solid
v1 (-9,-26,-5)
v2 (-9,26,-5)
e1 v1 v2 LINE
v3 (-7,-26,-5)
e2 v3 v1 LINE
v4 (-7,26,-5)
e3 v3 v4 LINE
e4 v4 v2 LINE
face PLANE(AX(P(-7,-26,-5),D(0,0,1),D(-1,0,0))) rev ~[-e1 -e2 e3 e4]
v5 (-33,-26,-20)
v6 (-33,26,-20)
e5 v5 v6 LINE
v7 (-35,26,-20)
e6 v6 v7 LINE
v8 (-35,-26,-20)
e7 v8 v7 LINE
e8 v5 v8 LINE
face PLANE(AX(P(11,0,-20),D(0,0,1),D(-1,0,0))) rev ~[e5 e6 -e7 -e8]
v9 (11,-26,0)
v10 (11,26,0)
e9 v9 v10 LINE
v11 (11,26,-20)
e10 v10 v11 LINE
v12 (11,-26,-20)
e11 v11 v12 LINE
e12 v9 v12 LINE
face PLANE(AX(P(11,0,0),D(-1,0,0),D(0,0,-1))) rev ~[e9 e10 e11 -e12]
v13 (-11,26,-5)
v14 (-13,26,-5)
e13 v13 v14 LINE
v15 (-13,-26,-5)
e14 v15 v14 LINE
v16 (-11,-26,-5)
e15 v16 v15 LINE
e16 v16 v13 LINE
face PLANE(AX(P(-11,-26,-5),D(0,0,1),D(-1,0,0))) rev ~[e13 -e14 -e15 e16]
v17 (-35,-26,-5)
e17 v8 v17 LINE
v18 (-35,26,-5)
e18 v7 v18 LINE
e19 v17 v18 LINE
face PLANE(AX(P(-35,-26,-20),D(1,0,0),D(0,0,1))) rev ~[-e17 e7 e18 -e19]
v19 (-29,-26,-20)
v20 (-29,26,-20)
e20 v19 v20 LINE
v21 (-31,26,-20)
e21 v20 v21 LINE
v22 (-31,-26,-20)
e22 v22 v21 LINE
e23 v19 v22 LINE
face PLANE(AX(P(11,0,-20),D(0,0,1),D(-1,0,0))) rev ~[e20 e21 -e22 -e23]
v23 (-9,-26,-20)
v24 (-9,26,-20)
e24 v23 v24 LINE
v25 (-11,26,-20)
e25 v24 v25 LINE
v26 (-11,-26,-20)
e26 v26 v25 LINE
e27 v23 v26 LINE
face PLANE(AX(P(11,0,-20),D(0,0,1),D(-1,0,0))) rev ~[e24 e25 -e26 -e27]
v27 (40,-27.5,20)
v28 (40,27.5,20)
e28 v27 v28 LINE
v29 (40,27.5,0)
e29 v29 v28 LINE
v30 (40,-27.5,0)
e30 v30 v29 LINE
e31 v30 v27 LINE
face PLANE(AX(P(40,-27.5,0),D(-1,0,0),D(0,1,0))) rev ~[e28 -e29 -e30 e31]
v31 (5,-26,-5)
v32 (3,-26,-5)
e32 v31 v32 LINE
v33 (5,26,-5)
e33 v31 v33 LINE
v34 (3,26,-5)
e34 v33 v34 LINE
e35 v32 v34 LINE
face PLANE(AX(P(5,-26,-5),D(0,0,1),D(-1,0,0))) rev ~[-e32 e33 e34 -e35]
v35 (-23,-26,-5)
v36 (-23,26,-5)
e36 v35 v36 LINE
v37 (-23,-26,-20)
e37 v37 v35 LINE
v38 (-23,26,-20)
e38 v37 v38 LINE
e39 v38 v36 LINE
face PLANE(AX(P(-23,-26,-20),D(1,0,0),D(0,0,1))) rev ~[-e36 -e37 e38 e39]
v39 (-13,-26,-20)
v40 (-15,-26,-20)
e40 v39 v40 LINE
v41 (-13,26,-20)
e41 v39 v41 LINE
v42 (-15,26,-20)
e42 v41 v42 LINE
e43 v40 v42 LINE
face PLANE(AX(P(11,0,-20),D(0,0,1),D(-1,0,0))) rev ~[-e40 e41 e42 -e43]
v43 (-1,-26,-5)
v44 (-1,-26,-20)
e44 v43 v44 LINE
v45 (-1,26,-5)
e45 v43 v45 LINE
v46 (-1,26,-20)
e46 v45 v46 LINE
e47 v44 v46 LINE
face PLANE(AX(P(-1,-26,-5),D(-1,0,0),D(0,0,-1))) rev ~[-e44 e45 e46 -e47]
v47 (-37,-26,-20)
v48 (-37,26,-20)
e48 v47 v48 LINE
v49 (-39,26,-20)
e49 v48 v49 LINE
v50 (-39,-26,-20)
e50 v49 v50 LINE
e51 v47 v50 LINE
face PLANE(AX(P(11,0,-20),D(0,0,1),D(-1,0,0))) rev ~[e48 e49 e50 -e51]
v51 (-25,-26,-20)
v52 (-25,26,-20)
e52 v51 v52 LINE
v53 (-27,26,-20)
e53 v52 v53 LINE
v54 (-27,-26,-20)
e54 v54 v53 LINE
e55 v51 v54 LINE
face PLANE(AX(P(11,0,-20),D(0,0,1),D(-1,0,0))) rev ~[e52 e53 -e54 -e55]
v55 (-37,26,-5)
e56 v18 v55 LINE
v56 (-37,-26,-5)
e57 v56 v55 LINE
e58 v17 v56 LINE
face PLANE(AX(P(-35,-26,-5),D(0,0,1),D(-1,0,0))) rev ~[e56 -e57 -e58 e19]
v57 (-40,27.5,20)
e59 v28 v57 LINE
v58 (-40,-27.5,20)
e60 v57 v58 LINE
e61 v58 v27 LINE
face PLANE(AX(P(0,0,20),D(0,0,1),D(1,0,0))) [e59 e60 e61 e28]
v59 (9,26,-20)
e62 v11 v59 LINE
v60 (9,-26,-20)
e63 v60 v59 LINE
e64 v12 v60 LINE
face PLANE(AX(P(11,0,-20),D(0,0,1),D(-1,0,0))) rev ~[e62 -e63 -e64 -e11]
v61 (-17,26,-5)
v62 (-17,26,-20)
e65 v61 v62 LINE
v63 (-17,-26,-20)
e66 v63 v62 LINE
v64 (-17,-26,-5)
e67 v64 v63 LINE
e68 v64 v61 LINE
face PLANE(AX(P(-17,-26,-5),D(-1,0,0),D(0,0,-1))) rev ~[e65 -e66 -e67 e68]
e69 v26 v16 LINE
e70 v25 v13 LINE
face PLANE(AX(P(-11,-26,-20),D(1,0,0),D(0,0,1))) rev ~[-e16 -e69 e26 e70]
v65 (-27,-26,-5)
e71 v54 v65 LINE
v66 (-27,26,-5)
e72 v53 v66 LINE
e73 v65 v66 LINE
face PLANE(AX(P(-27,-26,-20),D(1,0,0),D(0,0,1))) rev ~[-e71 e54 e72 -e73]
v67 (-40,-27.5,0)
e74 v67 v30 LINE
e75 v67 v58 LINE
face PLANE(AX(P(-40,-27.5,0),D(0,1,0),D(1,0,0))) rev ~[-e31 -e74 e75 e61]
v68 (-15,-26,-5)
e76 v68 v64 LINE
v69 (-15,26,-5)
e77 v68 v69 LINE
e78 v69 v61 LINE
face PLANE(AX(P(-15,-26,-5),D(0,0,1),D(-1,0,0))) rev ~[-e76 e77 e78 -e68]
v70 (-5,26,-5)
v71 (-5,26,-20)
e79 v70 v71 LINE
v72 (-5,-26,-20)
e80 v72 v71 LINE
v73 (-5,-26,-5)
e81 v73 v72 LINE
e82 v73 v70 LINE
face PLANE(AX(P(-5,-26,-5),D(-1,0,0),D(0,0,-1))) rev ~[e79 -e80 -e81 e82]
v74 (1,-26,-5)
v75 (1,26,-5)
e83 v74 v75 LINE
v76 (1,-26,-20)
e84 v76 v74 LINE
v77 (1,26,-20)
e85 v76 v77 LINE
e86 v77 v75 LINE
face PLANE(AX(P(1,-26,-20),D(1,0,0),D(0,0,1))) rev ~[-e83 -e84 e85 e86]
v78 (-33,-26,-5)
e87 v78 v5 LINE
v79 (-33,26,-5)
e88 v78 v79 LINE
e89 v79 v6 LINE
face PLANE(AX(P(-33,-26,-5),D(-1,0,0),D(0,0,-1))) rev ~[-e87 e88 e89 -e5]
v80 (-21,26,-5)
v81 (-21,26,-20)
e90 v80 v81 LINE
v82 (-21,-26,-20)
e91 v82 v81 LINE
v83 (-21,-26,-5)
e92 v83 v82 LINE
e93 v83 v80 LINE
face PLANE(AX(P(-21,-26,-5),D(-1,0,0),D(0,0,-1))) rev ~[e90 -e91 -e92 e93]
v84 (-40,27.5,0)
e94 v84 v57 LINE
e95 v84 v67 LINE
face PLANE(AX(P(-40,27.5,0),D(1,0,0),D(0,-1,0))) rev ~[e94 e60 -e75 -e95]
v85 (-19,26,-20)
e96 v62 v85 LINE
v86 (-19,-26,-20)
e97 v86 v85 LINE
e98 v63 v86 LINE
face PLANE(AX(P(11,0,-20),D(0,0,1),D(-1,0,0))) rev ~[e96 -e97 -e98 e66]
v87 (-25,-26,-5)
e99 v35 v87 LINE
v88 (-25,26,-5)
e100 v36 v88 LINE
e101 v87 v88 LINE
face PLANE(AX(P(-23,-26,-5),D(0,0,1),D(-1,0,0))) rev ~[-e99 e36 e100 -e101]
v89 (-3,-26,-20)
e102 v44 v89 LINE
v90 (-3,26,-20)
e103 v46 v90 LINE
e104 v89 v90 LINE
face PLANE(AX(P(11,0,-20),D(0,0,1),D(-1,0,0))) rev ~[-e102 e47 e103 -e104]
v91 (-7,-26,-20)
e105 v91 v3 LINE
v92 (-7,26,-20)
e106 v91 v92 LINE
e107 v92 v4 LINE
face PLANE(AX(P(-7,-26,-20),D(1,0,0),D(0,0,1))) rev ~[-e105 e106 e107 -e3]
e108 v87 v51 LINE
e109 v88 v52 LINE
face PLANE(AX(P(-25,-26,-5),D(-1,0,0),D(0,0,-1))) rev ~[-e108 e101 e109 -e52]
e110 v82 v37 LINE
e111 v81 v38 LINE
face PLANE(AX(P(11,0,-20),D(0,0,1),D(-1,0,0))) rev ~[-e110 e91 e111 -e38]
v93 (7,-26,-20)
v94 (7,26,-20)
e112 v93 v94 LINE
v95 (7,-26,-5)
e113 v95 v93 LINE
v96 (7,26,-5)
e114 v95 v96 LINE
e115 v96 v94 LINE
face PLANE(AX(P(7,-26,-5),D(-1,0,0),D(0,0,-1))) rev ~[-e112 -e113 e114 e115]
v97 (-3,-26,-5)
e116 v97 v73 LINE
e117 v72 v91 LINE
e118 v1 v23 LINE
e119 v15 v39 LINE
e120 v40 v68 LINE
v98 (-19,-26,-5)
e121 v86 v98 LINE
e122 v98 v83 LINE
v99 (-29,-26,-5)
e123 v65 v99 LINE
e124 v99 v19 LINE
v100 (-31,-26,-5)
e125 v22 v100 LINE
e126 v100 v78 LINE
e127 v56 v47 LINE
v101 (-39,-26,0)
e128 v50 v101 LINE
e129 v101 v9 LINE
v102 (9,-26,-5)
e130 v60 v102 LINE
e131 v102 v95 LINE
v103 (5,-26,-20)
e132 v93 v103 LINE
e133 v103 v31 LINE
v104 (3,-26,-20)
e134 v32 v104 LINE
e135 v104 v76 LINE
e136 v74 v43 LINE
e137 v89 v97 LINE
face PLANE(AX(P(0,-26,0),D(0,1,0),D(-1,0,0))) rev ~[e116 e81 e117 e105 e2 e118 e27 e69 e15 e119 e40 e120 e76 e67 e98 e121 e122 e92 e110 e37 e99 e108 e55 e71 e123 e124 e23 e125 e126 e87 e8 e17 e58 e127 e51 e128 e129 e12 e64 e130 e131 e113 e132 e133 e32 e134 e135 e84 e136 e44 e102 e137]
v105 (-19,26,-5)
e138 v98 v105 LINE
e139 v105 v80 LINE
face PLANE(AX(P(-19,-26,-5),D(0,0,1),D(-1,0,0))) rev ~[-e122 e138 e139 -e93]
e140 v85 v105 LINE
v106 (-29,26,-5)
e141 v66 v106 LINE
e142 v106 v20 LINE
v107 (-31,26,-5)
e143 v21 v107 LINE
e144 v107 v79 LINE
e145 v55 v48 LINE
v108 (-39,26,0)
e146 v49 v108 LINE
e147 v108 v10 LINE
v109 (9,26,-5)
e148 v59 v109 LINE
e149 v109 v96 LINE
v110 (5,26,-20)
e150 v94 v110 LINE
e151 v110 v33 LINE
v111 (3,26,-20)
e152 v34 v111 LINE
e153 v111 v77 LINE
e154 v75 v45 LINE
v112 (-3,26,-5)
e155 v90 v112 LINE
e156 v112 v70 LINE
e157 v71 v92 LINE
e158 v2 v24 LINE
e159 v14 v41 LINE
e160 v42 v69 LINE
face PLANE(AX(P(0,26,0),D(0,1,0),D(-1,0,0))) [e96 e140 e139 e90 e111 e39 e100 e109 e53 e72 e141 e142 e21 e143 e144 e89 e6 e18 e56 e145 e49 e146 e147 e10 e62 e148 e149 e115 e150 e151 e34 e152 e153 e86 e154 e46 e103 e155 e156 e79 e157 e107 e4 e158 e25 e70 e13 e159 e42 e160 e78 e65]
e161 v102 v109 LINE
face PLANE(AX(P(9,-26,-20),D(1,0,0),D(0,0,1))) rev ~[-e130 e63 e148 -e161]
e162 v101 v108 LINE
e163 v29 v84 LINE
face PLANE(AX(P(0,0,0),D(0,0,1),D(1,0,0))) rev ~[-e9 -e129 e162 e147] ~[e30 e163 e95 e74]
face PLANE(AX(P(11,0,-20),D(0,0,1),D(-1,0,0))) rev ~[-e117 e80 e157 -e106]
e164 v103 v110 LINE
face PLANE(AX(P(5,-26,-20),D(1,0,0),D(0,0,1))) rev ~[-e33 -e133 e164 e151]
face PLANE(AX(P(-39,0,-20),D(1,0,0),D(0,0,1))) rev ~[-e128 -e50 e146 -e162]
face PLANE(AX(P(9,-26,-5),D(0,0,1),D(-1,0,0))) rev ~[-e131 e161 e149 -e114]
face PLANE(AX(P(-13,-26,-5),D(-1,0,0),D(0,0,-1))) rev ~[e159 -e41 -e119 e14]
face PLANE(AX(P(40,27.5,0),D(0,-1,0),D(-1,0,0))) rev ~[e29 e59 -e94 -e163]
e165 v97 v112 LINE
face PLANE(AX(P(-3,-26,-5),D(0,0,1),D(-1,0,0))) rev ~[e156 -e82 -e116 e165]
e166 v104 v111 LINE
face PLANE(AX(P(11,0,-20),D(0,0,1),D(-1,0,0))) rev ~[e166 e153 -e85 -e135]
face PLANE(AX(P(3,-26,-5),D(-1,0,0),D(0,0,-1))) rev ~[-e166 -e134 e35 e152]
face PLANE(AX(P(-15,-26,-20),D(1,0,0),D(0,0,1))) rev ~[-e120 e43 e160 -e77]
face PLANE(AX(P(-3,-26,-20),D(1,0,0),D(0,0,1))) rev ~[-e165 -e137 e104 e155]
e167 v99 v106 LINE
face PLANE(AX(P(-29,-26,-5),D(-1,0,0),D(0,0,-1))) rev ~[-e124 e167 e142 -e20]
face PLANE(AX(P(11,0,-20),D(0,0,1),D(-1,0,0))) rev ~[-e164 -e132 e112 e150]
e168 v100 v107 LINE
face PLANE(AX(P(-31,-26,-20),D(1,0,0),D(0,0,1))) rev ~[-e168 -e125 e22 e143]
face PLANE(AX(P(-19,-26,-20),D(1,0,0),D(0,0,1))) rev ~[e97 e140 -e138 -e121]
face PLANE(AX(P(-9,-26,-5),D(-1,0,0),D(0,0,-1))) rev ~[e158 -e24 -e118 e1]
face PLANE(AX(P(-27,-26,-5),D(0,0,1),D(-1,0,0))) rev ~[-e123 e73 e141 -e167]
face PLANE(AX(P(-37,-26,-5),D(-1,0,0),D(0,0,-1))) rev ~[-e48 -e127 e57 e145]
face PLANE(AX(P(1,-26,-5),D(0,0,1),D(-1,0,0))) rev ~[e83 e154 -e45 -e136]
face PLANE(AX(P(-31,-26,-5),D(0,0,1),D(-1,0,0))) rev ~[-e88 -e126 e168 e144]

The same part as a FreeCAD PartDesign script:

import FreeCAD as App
import Part
import Sketcher
from FreeCAD import Vector
Q = App.Units.Quantity


def add_polygon(sketch, points):
    """Adds a closed chain of lines whose ends are joined by coincident constraints."""
    first, n = sketch.GeometryCount, len(points)
    for a, b in zip(points, points[1:] + points[:1]):
        sketch.addGeometry(Part.LineSegment(App.Vector(*a, 0), App.Vector(*b, 0)), False)
    for i in range(n):
        sketch.addConstraint(Sketcher.Constraint("Coincident", first + i, 2, first + (i + 1) % n, 1))

doc = App.newDocument("Part")
body = doc.addObject("PartDesign::Body", "Body")

sketch1 = body.newObject("Sketcher::SketchObject", "Sketch")
sketch1.AttachmentSupport = (doc.getObject("XY_Plane"), [""])
sketch1.MapMode = "FlatFace"
add_polygon(sketch1, [(-40, 28), (-40, -28), (40, -28), (40, 28)])
sketch1.addConstraint(Sketcher.Constraint("Vertical", 0))
sketch1.addConstraint(Sketcher.Constraint("Horizontal", 1))
sketch1.addConstraint(Sketcher.Constraint("Vertical", 2))
sketch1.addConstraint(Sketcher.Constraint("Horizontal", 3))
sketch1.addConstraint(Sketcher.Constraint("Symmetric", 0, 2, 2, 2, -1, 1))
sketch1.addConstraint(Sketcher.Constraint("DistanceX", 1, 1, 1, 2, Q("80 mm")))
sketch1.addConstraint(Sketcher.Constraint("DistanceY", 0, 2, 0, 1, Q("55 mm")))
pad1 = body.newObject("PartDesign::Pad", "Pad")
pad1.Profile = sketch1
pad1.Length = 20

sketch2 = body.newObject("Sketcher::SketchObject", "Sketch001")
sketch2.AttachmentSupport = (doc.getObject("XZ_Plane"), [""])
sketch2.MapMode = "FlatFace"
add_polygon(sketch2, [(-39, -20), (-39, 0), (11, 0), (11, -20)])
sketch2.addConstraint(Sketcher.Constraint("Vertical", 0))
sketch2.addConstraint(Sketcher.Constraint("Horizontal", 1))
sketch2.addConstraint(Sketcher.Constraint("Vertical", 2))
sketch2.addConstraint(Sketcher.Constraint("Horizontal", 3))
sketch2.addConstraint(Sketcher.Constraint("PointOnObject", 0, 2, -1))
sketch2.addConstraint(Sketcher.Constraint("DistanceX", 1, 1, 1, 2, Q("50 mm")))
sketch2.addConstraint(Sketcher.Constraint("DistanceY", 0, 1, 0, 2, Q("20 mm")))
sketch2.addConstraint(Sketcher.Constraint("DistanceX", 0, 2, -1, 1, Q("39 mm")))
pad2 = body.newObject("PartDesign::Pad", "Pad001")
pad2.Profile = sketch2
pad2.Length = 52
pad2.Midplane = True

sketch3 = body.newObject("Sketcher::SketchObject", "Sketch002")
sketch3.AttachmentSupport = (doc.getObject("XZ_Plane"), [""])
sketch3.MapMode = "FlatFace"
sketch3.AttachmentOffset = App.Placement(Vector(0, 0, 26), App.Rotation())
add_polygon(sketch3, [(-37, -20), (-35, -20), (-35, -5), (-37, -5)])
add_polygon(sketch3, [(-33, -20), (-31, -20), (-31, -5), (-33, -5)])
add_polygon(sketch3, [(-29, -20), (-27, -20), (-27, -5), (-29, -5)])
add_polygon(sketch3, [(-25, -20), (-23, -20), (-23, -5), (-25, -5)])
add_polygon(sketch3, [(-21, -20), (-19, -20), (-19, -5), (-21, -5)])
add_polygon(sketch3, [(-17, -20), (-15, -20), (-15, -5), (-17, -5)])
add_polygon(sketch3, [(-13, -20), (-11, -20), (-11, -5), (-13, -5)])
add_polygon(sketch3, [(-9, -20), (-7, -20), (-7, -5), (-9, -5)])
add_polygon(sketch3, [(-5, -20), (-3, -20), (-3, -5), (-5, -5)])
add_polygon(sketch3, [(-1, -20), (1, -20), (1, -5), (-1, -5)])
add_polygon(sketch3, [(3, -20), (5, -20), (5, -5), (3, -5)])
add_polygon(sketch3, [(7, -20), (9, -20), (9, -5), (7, -5)])
sketch3.addConstraint(Sketcher.Constraint("Horizontal", 0))
sketch3.addConstraint(Sketcher.Constraint("Vertical", 1))
sketch3.addConstraint(Sketcher.Constraint("Horizontal", 2))
sketch3.addConstraint(Sketcher.Constraint("Vertical", 3))
sketch3.addConstraint(Sketcher.Constraint("Horizontal", 4))
sketch3.addConstraint(Sketcher.Constraint("Vertical", 5))
sketch3.addConstraint(Sketcher.Constraint("Horizontal", 6))
sketch3.addConstraint(Sketcher.Constraint("Vertical", 7))
sketch3.addConstraint(Sketcher.Constraint("Horizontal", 8))
sketch3.addConstraint(Sketcher.Constraint("Vertical", 9))
sketch3.addConstraint(Sketcher.Constraint("Horizontal", 10))
sketch3.addConstraint(Sketcher.Constraint("Vertical", 11))
sketch3.addConstraint(Sketcher.Constraint("Horizontal", 12))
sketch3.addConstraint(Sketcher.Constraint("Vertical", 13))
sketch3.addConstraint(Sketcher.Constraint("Horizontal", 14))
sketch3.addConstraint(Sketcher.Constraint("Vertical", 15))
sketch3.addConstraint(Sketcher.Constraint("Horizontal", 16))
sketch3.addConstraint(Sketcher.Constraint("Vertical", 17))
sketch3.addConstraint(Sketcher.Constraint("Horizontal", 18))
sketch3.addConstraint(Sketcher.Constraint("Vertical", 19))
sketch3.addConstraint(Sketcher.Constraint("Horizontal", 20))
sketch3.addConstraint(Sketcher.Constraint("Vertical", 21))
sketch3.addConstraint(Sketcher.Constraint("Horizontal", 22))
sketch3.addConstraint(Sketcher.Constraint("Vertical", 23))
sketch3.addConstraint(Sketcher.Constraint("Horizontal", 24))
sketch3.addConstraint(Sketcher.Constraint("Vertical", 25))
sketch3.addConstraint(Sketcher.Constraint("Horizontal", 26))
sketch3.addConstraint(Sketcher.Constraint("Vertical", 27))
sketch3.addConstraint(Sketcher.Constraint("Horizontal", 28))
sketch3.addConstraint(Sketcher.Constraint("Vertical", 29))
sketch3.addConstraint(Sketcher.Constraint("Horizontal", 30))
sketch3.addConstraint(Sketcher.Constraint("Vertical", 31))
sketch3.addConstraint(Sketcher.Constraint("Horizontal", 32))
sketch3.addConstraint(Sketcher.Constraint("Vertical", 33))
sketch3.addConstraint(Sketcher.Constraint("Horizontal", 34))
sketch3.addConstraint(Sketcher.Constraint("Vertical", 35))
sketch3.addConstraint(Sketcher.Constraint("Horizontal", 36))
sketch3.addConstraint(Sketcher.Constraint("Vertical", 37))
sketch3.addConstraint(Sketcher.Constraint("Horizontal", 38))
sketch3.addConstraint(Sketcher.Constraint("Vertical", 39))
sketch3.addConstraint(Sketcher.Constraint("Horizontal", 40))
sketch3.addConstraint(Sketcher.Constraint("Vertical", 41))
sketch3.addConstraint(Sketcher.Constraint("Horizontal", 42))
sketch3.addConstraint(Sketcher.Constraint("Vertical", 43))
sketch3.addConstraint(Sketcher.Constraint("Horizontal", 44))
sketch3.addConstraint(Sketcher.Constraint("Vertical", 45))
sketch3.addConstraint(Sketcher.Constraint("Horizontal", 46))
sketch3.addConstraint(Sketcher.Constraint("Vertical", 47))
sketch3.addConstraint(Sketcher.Constraint("Symmetric", 35, 2, 40, 2, -2))
sketch3.addConstraint(Sketcher.Constraint("Symmetric", 33, 2, 42, 2, -2))
sketch3.addConstraint(Sketcher.Constraint("Symmetric", 31, 2, 44, 2, -2))
sketch3.addConstraint(Sketcher.Constraint("Symmetric", 29, 2, 46, 2, -2))
sketch3.addConstraint(Sketcher.Constraint("Horizontal", 3, 2, 4, 2))
sketch3.addConstraint(Sketcher.Constraint("Horizontal", 2, 2, 5, 2))
sketch3.addConstraint(Sketcher.Constraint("Horizontal", 7, 2, 8, 2))
sketch3.addConstraint(Sketcher.Constraint("Horizontal", 6, 2, 9, 2))
sketch3.addConstraint(Sketcher.Constraint("Horizontal", 11, 2, 12, 2))
sketch3.addConstraint(Sketcher.Constraint("Horizontal", 10, 2, 13, 2))
sketch3.addConstraint(Sketcher.Constraint("Horizontal", 15, 2, 16, 2))
sketch3.addConstraint(Sketcher.Constraint("Horizontal", 14, 2, 17, 2))
sketch3.addConstraint(Sketcher.Constraint("Horizontal", 19, 2, 20, 2))
sketch3.addConstraint(Sketcher.Constraint("Horizontal", 18, 2, 21, 2))
sketch3.addConstraint(Sketcher.Constraint("Horizontal", 23, 2, 24, 2))
sketch3.addConstraint(Sketcher.Constraint("Horizontal", 22, 2, 25, 2))
sketch3.addConstraint(Sketcher.Constraint("Horizontal", 27, 2, 28, 2))
sketch3.addConstraint(Sketcher.Constraint("Horizontal", 26, 2, 29, 2))
sketch3.addConstraint(Sketcher.Constraint("Horizontal", 31, 2, 32, 2))
sketch3.addConstraint(Sketcher.Constraint("Horizontal", 30, 2, 33, 2))
sketch3.addConstraint(Sketcher.Constraint("Horizontal", 35, 2, 36, 2))
sketch3.addConstraint(Sketcher.Constraint("Horizontal", 34, 2, 37, 2))
sketch3.addConstraint(Sketcher.Constraint("Equal", 2, 4))
sketch3.addConstraint(Sketcher.Constraint("Equal", 6, 8))
sketch3.addConstraint(Sketcher.Constraint("Equal", 10, 12))
sketch3.addConstraint(Sketcher.Constraint("Equal", 14, 16))
sketch3.addConstraint(Sketcher.Constraint("Equal", 18, 20))
sketch3.addConstraint(Sketcher.Constraint("Equal", 22, 24))
sketch3.addConstraint(Sketcher.Constraint("Equal", 26, 28))
sketch3.addConstraint(Sketcher.Constraint("Equal", 30, 32))
sketch3.addConstraint(Sketcher.Constraint("Equal", 34, 36))
sketch3.addConstraint(Sketcher.Constraint("DistanceX", 0, 1, 0, 2, Q("2 mm")))
sketch3.addConstraint(Sketcher.Constraint("DistanceY", 1, 1, 1, 2, Q("15 mm")))
sketch3.addConstraint(Sketcher.Constraint("DistanceX", 20, 2, -1, 1, Q("15 mm")))
sketch3.addConstraint(Sketcher.Constraint("DistanceX", 0, 2, 4, 2, Q("4 mm")))
sketch3.addConstraint(Sketcher.Constraint("DistanceX", 4, 2, 8, 2, Q("4 mm")))
sketch3.addConstraint(Sketcher.Constraint("DistanceX", 8, 2, 12, 2, Q("4 mm")))
sketch3.addConstraint(Sketcher.Constraint("DistanceX", 12, 2, 16, 2, Q("4 mm")))
sketch3.addConstraint(Sketcher.Constraint("DistanceX", 16, 2, 20, 2, Q("4 mm")))
sketch3.addConstraint(Sketcher.Constraint("DistanceX", 20, 2, 24, 2, Q("4 mm")))
sketch3.addConstraint(Sketcher.Constraint("DistanceX", 24, 2, 28, 2, Q("4 mm")))
sketch3.addConstraint(Sketcher.Constraint("DistanceX", 28, 2, 32, 2, Q("4 mm")))
sketch3.addConstraint(Sketcher.Constraint("DistanceX", 32, 2, 36, 2, Q("4 mm")))
sketch3.addConstraint(Sketcher.Constraint("DistanceY", 0, 2, -1, 1, Q("20 mm")))
pocket1 = body.newObject("PartDesign::Pocket", "Pocket")
pocket1.Profile = sketch3
pocket1.Length = 52

doc.recompute()
